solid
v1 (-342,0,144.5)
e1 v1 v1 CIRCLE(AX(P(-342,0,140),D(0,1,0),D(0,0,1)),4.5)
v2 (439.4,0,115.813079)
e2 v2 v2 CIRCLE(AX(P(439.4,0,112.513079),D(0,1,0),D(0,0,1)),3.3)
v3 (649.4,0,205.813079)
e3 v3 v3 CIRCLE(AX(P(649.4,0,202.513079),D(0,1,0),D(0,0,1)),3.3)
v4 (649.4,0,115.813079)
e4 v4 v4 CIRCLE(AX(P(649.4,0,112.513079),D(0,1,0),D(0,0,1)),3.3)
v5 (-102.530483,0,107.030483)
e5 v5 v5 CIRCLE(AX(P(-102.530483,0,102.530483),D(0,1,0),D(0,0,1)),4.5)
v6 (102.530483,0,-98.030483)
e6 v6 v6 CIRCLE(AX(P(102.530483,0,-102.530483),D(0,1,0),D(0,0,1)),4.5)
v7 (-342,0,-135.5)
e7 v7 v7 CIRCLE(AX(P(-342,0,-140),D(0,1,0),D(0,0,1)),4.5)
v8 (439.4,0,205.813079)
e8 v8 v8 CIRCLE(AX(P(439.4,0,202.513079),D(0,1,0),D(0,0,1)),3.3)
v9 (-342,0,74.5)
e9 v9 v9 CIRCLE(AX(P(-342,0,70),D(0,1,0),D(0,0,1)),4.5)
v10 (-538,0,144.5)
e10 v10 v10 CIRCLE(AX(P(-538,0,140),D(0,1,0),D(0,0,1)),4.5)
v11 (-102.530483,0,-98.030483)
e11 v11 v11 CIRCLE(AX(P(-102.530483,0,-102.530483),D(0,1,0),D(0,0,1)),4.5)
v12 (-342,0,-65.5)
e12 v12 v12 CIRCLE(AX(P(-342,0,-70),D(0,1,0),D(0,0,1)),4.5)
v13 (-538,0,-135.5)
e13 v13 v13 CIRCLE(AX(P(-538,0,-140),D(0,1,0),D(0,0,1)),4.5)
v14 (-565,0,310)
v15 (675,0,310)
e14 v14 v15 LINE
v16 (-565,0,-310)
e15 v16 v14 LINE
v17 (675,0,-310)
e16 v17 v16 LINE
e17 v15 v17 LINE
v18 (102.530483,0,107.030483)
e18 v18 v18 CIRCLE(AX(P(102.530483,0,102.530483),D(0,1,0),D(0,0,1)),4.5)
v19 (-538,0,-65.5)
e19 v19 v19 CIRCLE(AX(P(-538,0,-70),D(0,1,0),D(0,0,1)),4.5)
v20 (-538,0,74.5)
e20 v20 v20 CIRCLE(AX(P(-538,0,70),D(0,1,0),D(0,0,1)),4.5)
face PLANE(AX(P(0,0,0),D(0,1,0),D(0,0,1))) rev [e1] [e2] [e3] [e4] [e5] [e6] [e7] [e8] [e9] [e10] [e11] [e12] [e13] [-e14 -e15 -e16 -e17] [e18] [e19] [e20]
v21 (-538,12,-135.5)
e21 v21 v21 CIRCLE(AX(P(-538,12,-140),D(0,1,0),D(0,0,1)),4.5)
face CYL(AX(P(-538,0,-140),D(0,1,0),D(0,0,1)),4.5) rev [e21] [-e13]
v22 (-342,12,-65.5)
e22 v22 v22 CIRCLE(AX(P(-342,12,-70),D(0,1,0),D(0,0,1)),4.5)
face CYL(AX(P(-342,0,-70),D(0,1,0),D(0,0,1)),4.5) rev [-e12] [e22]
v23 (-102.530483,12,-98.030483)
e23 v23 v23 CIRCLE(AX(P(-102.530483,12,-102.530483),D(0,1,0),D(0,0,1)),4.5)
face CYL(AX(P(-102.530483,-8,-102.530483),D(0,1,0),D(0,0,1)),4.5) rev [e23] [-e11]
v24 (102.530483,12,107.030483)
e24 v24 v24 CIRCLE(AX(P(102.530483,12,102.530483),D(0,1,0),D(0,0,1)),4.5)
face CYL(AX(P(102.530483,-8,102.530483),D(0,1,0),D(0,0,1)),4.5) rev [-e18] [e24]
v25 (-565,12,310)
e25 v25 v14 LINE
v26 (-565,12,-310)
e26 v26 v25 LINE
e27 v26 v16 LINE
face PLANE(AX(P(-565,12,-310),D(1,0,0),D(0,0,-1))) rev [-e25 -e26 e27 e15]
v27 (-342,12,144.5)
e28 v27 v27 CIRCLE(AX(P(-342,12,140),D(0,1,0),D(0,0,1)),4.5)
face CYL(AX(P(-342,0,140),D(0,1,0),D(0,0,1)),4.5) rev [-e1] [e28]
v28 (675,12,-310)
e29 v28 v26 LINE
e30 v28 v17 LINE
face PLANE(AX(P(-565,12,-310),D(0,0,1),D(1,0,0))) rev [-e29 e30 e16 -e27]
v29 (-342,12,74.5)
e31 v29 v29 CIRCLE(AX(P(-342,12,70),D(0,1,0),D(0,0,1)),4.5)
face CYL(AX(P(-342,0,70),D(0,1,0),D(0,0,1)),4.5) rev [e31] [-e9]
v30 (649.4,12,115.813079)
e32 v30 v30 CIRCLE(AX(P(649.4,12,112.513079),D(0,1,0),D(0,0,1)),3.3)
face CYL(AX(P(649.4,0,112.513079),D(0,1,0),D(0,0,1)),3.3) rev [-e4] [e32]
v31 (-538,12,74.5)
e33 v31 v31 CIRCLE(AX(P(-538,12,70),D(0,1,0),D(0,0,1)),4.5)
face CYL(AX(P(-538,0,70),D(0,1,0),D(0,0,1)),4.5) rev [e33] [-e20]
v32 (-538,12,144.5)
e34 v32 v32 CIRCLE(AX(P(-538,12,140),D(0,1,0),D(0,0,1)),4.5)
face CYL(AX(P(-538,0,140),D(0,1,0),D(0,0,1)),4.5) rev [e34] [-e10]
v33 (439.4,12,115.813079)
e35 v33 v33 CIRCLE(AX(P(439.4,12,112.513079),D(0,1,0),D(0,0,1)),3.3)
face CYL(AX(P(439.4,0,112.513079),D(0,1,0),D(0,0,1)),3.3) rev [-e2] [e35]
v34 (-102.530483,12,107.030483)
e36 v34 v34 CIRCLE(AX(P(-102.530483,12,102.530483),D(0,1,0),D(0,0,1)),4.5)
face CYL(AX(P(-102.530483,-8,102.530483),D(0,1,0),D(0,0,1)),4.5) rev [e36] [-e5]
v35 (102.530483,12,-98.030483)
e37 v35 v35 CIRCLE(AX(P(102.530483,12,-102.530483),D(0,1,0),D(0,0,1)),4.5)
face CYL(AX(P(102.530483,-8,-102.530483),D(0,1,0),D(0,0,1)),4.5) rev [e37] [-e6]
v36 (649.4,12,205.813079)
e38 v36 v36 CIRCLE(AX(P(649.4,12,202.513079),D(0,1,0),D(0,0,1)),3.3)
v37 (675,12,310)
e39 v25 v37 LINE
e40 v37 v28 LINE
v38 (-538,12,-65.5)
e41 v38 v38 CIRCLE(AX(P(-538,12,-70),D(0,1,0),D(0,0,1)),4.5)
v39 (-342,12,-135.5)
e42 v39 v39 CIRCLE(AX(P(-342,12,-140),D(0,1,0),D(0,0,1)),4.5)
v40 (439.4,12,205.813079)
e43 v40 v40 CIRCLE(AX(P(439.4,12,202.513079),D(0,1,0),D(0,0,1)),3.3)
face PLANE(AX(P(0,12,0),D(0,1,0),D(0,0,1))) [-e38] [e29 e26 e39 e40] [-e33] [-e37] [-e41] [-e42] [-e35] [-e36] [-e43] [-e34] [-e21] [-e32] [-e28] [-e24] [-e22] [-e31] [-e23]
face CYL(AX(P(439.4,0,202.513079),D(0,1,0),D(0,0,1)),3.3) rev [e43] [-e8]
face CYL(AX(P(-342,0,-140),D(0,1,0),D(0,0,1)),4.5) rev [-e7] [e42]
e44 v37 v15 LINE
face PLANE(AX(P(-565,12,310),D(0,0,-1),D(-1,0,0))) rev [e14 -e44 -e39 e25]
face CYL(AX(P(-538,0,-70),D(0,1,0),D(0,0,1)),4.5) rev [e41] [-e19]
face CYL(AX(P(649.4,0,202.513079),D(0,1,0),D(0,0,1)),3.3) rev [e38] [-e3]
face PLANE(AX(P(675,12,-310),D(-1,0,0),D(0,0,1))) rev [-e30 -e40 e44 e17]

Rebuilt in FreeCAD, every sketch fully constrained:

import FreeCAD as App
import Part
import Sketcher

V = App.Vector


def add_polygon(sketch, points):
    """Adds a closed chain of lines whose ends are joined by coincident constraints."""
    first, n = sketch.GeometryCount, len(points)
    for a, b in zip(points, points[1:] + points[:1]):
        sketch.addGeometry(Part.LineSegment(App.Vector(*a, 0), App.Vector(*b, 0)), False)
    for i in range(n):
        sketch.addConstraint(Sketcher.Constraint("Coincident", first + i, 2, first + (i + 1) % n, 1))

doc = App.newDocument("Part")
params = doc.addObject("Spreadsheet::Sheet", "Params")
for row, (alias, value) in enumerate([
    ("sketch1_width", "1240 mm"),
    ("sketch1_height", "620 mm"),
    ("pad1_length", "12 mm"),
    ("sketch2_diameter", "9 mm"),
    ("pocket1_length", "12 mm"),
    ("sketch3_diameter", "9 mm"),
    ("pocket2_length", "28 mm"),
    ("sketch4_diameter", "6.6 mm"),
    ("pocket3_length", "12 mm"),
], start=1):
    params.set(f"A{row}", alias)
    params.set(f"B{row}", "=" + value)
    params.setAlias(f"B{row}", alias)

body = doc.addObject("PartDesign::Body", "Body")

sketch1 = body.newObject("Sketcher::SketchObject", "Sketch")
sketch1.AttachmentSupport = (doc.getObject("XZ_Plane"), [""])
sketch1.MapMode = "FlatFace"
add_polygon(sketch1, [(-565, -310), (-565, 310), (675, 310), (675, -310)])
sketch1.addConstraint([
    Sketcher.Constraint("Vertical", 0),
    Sketcher.Constraint("Horizontal", 1),
    Sketcher.Constraint("Vertical", 2),
    Sketcher.Constraint("Horizontal", 3),
    Sketcher.Constraint("DistanceX", 1, 1, 1, 2, 1240.0),
    Sketcher.Constraint("DistanceY", 0, 1, 0, 2, 620.0),
    Sketcher.Constraint("DistanceX", 0, 2, -1, 1, 565.0),
    Sketcher.Constraint("DistanceY", -1, 1, 0, 2, 310.0),
])
sketch1.setExpression("Constraints[8]", "Params.sketch1_width")
sketch1.setExpression("Constraints[9]", "Params.sketch1_height")
pad1 = body.newObject("PartDesign::Pad", "Pad")
pad1.Profile = sketch1
pad1.setExpression("Length", "Params.pad1_length")
pad1.Reversed = True

sketch2 = body.newObject("Sketcher::SketchObject", "Sketch001")
sketch2.AttachmentSupport = (doc.getObject("XZ_Plane"), [""])
sketch2.MapMode = "FlatFace"
sketch2.AttachmentOffset = App.Placement(V(0, 0, -6), App.Rotation())
sketch2.addGeometry([
    Part.Circle(V(-538, -140, 0), V(0, 0, 1), 4.5),
    Part.Circle(V(-538, -70, 0), V(0, 0, 1), 4.5),
    Part.Circle(V(-538, 70, 0), V(0, 0, 1), 4.5),
    Part.Circle(V(-538, 140, 0), V(0, 0, 1), 4.5),
    Part.Circle(V(-342, -140, 0), V(0, 0, 1), 4.5),
    Part.Circle(V(-342, -70, 0), V(0, 0, 1), 4.5),
    Part.Circle(V(-342, 70, 0), V(0, 0, 1), 4.5),
    Part.Circle(V(-342, 140, 0), V(0, 0, 1), 4.5),
], False)
sketch2.addConstraint([
    Sketcher.Constraint("Equal", 0, 1),
    Sketcher.Constraint("Equal", 1, 2),
    Sketcher.Constraint("Equal", 2, 3),
    Sketcher.Constraint("Equal", 3, 4),
    Sketcher.Constraint("Equal", 4, 5),
    Sketcher.Constraint("Equal", 5, 6),
    Sketcher.Constraint("Equal", 6, 7),
    Sketcher.Constraint("Symmetric", 1, 3, 2, 3, -1),
    Sketcher.Constraint("Symmetric", 0, 3, 3, 3, -1),
    Sketcher.Constraint("Symmetric", 5, 3, 6, 3, -1),
    Sketcher.Constraint("Symmetric", 4, 3, 7, 3, -1),
    Sketcher.Constraint("Horizontal", 0, 3, 4, 3),
    Sketcher.Constraint("Horizontal", 1, 3, 5, 3),
    Sketcher.Constraint("Vertical", 0, 3, 1, 3),
    Sketcher.Constraint("Vertical", 4, 3, 5, 3),
    Sketcher.Constraint("Diameter", 0, 9.0),
    Sketcher.Constraint("DistanceX", 0, 3, -1, 1, 538.0),
    Sketcher.Constraint("DistanceY", 0, 3, -1, 1, 140.0),
    Sketcher.Constraint("DistanceY", 1, 3, -1, 1, 70.0),
    Sketcher.Constraint("DistanceX", 4, 3, -1, 1, 342.0),
])
sketch2.setExpression("Constraints[15]", "Params.sketch2_diameter")
pocket1 = body.newObject("PartDesign::Pocket", "Pocket")
pocket1.Profile = sketch2
pocket1.setExpression("Length", "Params.pocket1_length")
pocket1.Midplane = True

sketch3 = body.newObject("Sketcher::SketchObject", "Sketch002")
sketch3.AttachmentSupport = (doc.getObject("XZ_Plane"), [""])
sketch3.MapMode = "FlatFace"
sketch3.AttachmentOffset = App.Placement(V(0, 0, -6), App.Rotation())
sketch3.addGeometry([
    Part.Circle(V(102.530483, -102.530483, 0), V(0, 0, 1), 4.5),
    Part.Circle(V(-102.530483, -102.530483, 0), V(0, 0, 1), 4.5),
    Part.Circle(V(-102.530483, 102.530483, 0), V(0, 0, 1), 4.5),
    Part.Circle(V(102.530483, 102.530483, 0), V(0, 0, 1), 4.5),
], False)
sketch3.addConstraint([
    Sketcher.Constraint("Equal", 0, 1),
    Sketcher.Constraint("Equal", 1, 2),
    Sketcher.Constraint("Equal", 2, 3),
    Sketcher.Constraint("Symmetric", 0, 3, 2, 3, -1, 1),
    Sketcher.Constraint("Symmetric", 1, 3, 3, 3, -1, 1),
    Sketcher.Constraint("Symmetric", 0, 3, 1, 3, -2),
    Sketcher.Constraint("Diameter", 0, 9.0),
    Sketcher.Constraint("DistanceX", -1, 1, 0, 3, 102.530483),
    Sketcher.Constraint("DistanceY", 0, 3, -1, 1, 102.530483),
])
sketch3.setExpression("Constraints[6]", "Params.sketch3_diameter")
pocket2 = body.newObject("PartDesign::Pocket", "Pocket001")
pocket2.Profile = sketch3
pocket2.setExpression("Length", "Params.pocket2_length")
pocket2.Midplane = True

sketch4 = body.newObject("Sketcher::SketchObject", "Sketch003")
sketch4.AttachmentSupport = (doc.getObject("XZ_Plane"), [""])
sketch4.MapMode = "FlatFace"
sketch4.AttachmentOffset = App.Placement(V(0, 0, -6), App.Rotation())
sketch4.addGeometry([
    Part.Circle(V(439.4, 202.513079, 0), V(0, 0, 1), 3.3),
    Part.Circle(V(649.4, 202.513079, 0), V(0, 0, 1), 3.3),
    Part.Circle(V(439.4, 112.513079, 0), V(0, 0, 1), 3.3),
    Part.Circle(V(649.4, 112.513079, 0), V(0, 0, 1), 3.3),
], False)
sketch4.addConstraint([
    Sketcher.Constraint("Equal", 0, 1),
    Sketcher.Constraint("Equal", 1, 2),
    Sketcher.Constraint("Equal", 2, 3),
    Sketcher.Constraint("Horizontal", 0, 3, 1, 3),
    Sketcher.Constraint("Horizontal", 2, 3, 3, 3),
    Sketcher.Constraint("Vertical", 0, 3, 2, 3),
    Sketcher.Constraint("Vertical", 1, 3, 3, 3),
    Sketcher.Constraint("Diameter", 0, 6.6),
    Sketcher.Constraint("DistanceX", 0, 3, 1, 3, 210.0),
    Sketcher.Constraint("DistanceY", 2, 3, 0, 3, 90.0),
    Sketcher.Constraint("DistanceX", -1, 1, 0, 3, 439.4),
    Sketcher.Constraint("DistanceY", -1, 1, 0, 3, 202.513079),
])
sketch4.setExpression("Constraints[7]", "Params.sketch4_diameter")
pocket3 = body.newObject("PartDesign::Pocket", "Pocket002")
pocket3.Profile = sketch4
pocket3.setExpression("Length", "Params.pocket3_length")
pocket3.Midplane = True

doc.recompute()
